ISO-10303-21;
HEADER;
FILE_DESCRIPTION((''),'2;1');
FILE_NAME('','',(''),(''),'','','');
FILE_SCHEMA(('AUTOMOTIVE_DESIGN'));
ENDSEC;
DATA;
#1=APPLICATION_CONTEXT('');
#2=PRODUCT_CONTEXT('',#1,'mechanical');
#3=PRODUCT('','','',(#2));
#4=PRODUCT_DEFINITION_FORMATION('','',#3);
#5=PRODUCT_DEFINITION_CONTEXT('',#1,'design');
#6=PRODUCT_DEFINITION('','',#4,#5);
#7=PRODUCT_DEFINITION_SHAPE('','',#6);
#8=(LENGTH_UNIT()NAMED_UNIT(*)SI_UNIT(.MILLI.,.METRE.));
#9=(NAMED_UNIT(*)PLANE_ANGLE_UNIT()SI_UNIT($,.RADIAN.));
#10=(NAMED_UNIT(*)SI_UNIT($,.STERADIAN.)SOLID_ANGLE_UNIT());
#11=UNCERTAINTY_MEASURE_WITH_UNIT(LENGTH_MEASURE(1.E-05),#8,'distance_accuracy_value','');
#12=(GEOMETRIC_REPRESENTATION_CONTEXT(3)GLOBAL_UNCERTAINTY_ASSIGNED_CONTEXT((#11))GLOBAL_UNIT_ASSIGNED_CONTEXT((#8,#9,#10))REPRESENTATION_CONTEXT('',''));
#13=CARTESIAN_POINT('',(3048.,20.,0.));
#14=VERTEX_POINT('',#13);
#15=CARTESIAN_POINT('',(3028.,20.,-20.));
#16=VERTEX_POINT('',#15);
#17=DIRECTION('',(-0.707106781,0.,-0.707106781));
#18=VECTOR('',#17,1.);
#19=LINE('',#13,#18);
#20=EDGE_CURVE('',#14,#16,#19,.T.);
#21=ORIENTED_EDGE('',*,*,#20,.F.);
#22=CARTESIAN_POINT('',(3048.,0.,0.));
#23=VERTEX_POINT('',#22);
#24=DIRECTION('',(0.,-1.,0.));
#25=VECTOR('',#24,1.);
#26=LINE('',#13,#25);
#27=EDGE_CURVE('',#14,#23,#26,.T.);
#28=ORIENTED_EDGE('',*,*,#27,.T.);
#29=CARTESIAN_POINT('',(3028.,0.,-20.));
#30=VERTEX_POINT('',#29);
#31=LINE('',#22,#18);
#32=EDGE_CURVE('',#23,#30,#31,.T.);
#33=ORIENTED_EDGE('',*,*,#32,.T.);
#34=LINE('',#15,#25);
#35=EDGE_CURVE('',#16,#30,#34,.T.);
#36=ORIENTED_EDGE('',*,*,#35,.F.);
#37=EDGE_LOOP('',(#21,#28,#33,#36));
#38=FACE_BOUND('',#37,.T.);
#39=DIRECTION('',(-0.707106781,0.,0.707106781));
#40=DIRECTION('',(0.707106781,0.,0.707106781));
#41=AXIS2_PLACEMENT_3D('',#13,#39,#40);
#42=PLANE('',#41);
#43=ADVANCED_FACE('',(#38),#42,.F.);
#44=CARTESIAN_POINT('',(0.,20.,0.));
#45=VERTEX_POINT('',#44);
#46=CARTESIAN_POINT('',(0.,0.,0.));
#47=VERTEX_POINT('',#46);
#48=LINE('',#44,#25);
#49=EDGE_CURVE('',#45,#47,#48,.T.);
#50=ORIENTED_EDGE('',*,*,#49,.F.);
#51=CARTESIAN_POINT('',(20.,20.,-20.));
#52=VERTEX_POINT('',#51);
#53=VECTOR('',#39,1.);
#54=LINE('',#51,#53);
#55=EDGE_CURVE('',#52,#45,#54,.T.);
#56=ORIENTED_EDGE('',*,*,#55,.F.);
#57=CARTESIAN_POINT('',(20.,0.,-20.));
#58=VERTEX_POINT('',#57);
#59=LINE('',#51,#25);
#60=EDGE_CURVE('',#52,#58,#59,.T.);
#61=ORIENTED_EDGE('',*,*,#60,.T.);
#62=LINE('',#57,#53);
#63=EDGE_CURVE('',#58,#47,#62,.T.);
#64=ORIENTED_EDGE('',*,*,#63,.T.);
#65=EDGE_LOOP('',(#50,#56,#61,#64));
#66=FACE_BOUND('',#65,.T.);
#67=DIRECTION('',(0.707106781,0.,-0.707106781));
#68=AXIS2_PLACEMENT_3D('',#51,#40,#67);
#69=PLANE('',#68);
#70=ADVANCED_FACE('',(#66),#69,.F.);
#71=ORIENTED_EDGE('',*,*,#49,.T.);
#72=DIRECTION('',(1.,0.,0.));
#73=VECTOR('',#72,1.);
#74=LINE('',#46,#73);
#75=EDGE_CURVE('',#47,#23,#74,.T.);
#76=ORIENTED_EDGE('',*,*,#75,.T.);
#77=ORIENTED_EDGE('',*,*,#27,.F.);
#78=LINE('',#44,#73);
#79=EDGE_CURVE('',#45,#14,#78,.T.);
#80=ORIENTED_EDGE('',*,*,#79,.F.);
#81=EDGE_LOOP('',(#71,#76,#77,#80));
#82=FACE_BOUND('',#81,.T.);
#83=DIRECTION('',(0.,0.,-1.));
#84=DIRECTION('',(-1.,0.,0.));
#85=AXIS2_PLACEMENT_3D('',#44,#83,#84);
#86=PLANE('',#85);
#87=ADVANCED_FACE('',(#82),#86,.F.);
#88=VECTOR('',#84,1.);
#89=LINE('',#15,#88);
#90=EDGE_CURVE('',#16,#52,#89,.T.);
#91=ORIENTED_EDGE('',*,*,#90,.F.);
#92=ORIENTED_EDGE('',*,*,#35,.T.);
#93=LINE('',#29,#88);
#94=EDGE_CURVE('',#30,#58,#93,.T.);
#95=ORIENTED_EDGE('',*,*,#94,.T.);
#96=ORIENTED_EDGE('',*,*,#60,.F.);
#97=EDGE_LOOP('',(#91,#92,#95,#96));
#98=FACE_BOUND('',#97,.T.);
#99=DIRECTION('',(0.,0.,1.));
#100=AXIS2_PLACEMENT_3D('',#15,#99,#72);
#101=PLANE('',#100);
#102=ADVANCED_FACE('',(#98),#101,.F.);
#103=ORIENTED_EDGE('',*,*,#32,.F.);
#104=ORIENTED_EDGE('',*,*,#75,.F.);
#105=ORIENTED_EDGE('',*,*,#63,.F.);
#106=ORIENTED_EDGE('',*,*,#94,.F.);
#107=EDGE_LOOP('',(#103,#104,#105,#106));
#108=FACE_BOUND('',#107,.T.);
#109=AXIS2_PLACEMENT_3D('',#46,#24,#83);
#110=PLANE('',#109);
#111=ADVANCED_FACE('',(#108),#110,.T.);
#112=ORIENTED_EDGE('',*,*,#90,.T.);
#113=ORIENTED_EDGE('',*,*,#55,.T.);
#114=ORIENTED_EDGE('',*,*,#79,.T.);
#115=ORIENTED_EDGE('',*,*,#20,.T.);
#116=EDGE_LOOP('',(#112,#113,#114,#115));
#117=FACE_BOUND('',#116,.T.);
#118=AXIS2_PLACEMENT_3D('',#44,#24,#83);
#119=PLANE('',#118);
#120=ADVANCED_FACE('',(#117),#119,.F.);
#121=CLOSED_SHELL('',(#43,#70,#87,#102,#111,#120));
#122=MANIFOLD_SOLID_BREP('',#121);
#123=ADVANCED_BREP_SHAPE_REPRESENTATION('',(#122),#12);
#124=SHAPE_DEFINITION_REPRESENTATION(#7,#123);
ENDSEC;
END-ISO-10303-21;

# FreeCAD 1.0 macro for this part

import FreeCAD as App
import Part
import Sketcher

doc = App.newDocument("Part")
body = doc.addObject("PartDesign::Body", "Body")

sketch1 = doc.addObject("Sketcher::SketchObject", "Sketch")
body.addObject(sketch1)
sketch1.AttachmentSupport = (doc.XZ_Plane, [""])
sketch1.MapMode = "FlatFace"
sketch1.addGeometry([
    Part.LineSegment(App.Vector(0, 0, 0), App.Vector(3048, 0, 0)),
    Part.LineSegment(App.Vector(3048, 0, 0), App.Vector(3028, -20, 0)),
    Part.LineSegment(App.Vector(3028, -20, 0), App.Vector(20, -20, 0)),
    Part.LineSegment(App.Vector(20, -20, 0), App.Vector(0, 0, 0)),
], False)
sketch1.addConstraint([
    Sketcher.Constraint("Coincident", 0, 2, 1, 1),
    Sketcher.Constraint("Coincident", 1, 2, 2, 1),
    Sketcher.Constraint("Coincident", 2, 2, 3, 1),
    Sketcher.Constraint("Coincident", 3, 2, 0, 1),
    Sketcher.Constraint("Horizontal", 0),
    Sketcher.Constraint("Horizontal", 2),
    Sketcher.Constraint("Coincident", 3, 2, -1, 1),
    Sketcher.Constraint("Perpendicular", 1, 3),
    Sketcher.Constraint("Equal", 1, 3),
    Sketcher.Constraint("DistanceX", 0, 1, 0, 2, 3048.0),
    Sketcher.Constraint("DistanceX", 2, 2, 2, 1, 3008.0),
])
pad1 = doc.addObject("PartDesign::Pad", "Pad")
body.addObject(pad1)
pad1.Profile = sketch1
pad1.Length = 20
pad1.Reversed = True

doc.recompute()
